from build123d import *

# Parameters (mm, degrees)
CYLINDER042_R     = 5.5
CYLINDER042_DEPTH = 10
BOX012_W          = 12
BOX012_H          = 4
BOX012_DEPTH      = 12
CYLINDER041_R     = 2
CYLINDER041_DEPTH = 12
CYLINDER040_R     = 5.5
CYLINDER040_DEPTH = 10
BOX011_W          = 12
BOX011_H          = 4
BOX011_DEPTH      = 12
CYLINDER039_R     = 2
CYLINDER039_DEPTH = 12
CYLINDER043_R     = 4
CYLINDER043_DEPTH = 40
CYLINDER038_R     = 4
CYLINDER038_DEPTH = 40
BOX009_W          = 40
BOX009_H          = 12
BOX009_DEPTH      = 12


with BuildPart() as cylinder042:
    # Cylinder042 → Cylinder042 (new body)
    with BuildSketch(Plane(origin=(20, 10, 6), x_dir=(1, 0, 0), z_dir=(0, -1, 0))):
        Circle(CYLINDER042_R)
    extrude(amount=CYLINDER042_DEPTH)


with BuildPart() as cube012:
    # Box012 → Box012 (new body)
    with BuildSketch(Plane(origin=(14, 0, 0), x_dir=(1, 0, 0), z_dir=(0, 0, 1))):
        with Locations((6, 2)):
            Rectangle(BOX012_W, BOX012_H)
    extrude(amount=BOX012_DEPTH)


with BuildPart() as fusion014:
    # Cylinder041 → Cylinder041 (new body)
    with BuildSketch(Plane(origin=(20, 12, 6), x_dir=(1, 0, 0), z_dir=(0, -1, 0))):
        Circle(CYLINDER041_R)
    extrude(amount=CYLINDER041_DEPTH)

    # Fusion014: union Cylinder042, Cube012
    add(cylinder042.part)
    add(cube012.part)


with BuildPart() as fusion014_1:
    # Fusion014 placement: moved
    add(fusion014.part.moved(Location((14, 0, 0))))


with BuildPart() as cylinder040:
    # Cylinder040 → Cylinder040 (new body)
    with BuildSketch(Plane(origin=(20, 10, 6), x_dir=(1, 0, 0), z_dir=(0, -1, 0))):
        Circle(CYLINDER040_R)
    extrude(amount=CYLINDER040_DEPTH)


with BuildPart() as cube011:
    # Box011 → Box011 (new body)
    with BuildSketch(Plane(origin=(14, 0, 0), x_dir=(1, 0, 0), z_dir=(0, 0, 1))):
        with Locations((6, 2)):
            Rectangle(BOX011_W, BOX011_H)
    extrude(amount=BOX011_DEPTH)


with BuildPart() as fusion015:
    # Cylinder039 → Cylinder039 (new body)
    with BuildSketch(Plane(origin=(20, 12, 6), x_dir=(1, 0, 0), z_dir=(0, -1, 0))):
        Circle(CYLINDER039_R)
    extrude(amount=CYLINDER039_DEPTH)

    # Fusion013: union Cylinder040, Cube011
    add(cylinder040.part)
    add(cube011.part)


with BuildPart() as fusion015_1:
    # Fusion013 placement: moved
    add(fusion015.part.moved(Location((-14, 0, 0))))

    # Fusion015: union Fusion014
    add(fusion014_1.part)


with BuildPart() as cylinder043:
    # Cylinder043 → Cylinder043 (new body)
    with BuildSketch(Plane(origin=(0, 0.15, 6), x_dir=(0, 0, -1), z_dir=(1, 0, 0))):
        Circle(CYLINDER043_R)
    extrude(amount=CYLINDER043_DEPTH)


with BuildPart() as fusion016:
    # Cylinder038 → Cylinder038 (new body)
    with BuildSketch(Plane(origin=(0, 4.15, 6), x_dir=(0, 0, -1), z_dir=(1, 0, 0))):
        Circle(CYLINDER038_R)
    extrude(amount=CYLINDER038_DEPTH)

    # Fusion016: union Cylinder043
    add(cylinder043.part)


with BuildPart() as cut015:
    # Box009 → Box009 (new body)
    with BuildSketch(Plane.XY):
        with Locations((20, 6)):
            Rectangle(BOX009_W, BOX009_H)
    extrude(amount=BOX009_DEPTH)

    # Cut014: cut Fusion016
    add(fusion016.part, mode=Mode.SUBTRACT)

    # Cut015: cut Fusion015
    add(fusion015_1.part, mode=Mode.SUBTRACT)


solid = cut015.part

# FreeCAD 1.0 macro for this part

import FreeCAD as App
import Part
import Sketcher

doc = App.newDocument("Part")
body = doc.addObject("PartDesign::Body", "Body")

sketch1 = body.newObject("Sketcher::SketchObject", "Sketch")
sketch1.AttachmentSupport = (doc.getObject("XZ_Plane"), [""])
sketch1.MapMode = "FlatFace"
sketch1.AttachmentOffset = App.Placement(App.Vector(0, 0, -10), App.Rotation())
sketch1.addGeometry(Part.Circle(App.Vector(20, 6, 0), App.Vector(0, 0, 1), 5.5), False)
sketch1.addConstraint([
    Sketcher.Constraint("Diameter", 0, 11.0),
    Sketcher.Constraint("DistanceX", -1, 1, 0, 3, 20.0),
    Sketcher.Constraint("DistanceY", -1, 1, 0, 3, 6.0),
])
pad1 = body.newObject("PartDesign::Pad", "Pad")
pad1.Profile = sketch1
pad1.Length = 10
body2 = doc.addObject("PartDesign::Body", "Body001")

sketch2 = body2.newObject("Sketcher::SketchObject", "Sketch001")
sketch2.AttachmentSupport = (doc.getObject("XY_Plane001"), [""])
sketch2.MapMode = "FlatFace"
sketch2.addGeometry([
    Part.LineSegment(App.Vector(14, 4, 0), App.Vector(14, 0, 0)),
    Part.LineSegment(App.Vector(14, 0, 0), App.Vector(26, 0, 0)),
    Part.LineSegment(App.Vector(26, 0, 0), App.Vector(26, 4, 0)),
    Part.LineSegment(App.Vector(26, 4, 0), App.Vector(14, 4, 0)),
], False)
sketch2.addConstraint([
    Sketcher.Constraint("Coincident", 0, 2, 1, 1),
    Sketcher.Constraint("Coincident", 1, 2, 2, 1),
    Sketcher.Constraint("Coincident", 2, 2, 3, 1),
    Sketcher.Constraint("Coincident", 3, 2, 0, 1),
    Sketcher.Constraint("Vertical", 0),
    Sketcher.Constraint("Horizontal", 1),
    Sketcher.Constraint("Vertical", 2),
    Sketcher.Constraint("Horizontal", 3),
    Sketcher.Constraint("PointOnObject", 0, 2, -1),
    Sketcher.Constraint("DistanceX", 1, 1, 1, 2, 12.0),
    Sketcher.Constraint("DistanceY", 0, 2, 0, 1, 4.0),
    Sketcher.Constraint("DistanceX", -1, 1, 0, 2, 14.0),
])
pad2 = body2.newObject("PartDesign::Pad", "Pad001")
pad2.Profile = sketch2
pad2.Length = 12
body3 = doc.addObject("PartDesign::Body", "Body002")

sketch3 = body3.newObject("Sketcher::SketchObject", "Sketch002")
sketch3.AttachmentSupport = (doc.getObject("XZ_Plane002"), [""])
sketch3.MapMode = "FlatFace"
sketch3.AttachmentOffset = App.Placement(App.Vector(0, 0, -12), App.Rotation())
sketch3.addGeometry(Part.Circle(App.Vector(20, 6, 0), App.Vector(0, 0, 1), 2), False)
sketch3.addConstraint([
    Sketcher.Constraint("Diameter", 0, 4.0),
    Sketcher.Constraint("DistanceX", -1, 1, 0, 3, 20.0),
    Sketcher.Constraint("DistanceY", -1, 1, 0, 3, 6.0),
])
pad3 = body3.newObject("PartDesign::Pad", "Pad002")
pad3.Profile = sketch3
pad3.Length = 12
doc.recompute()

boolean = body3.newObject("PartDesign::Boolean", "Boolean")
boolean.Type = "Fuse"
boolean.addObjects([body])
doc.recompute()

boolean2 = body3.newObject("PartDesign::Boolean", "Boolean001")
boolean2.Type = "Fuse"
boolean2.addObjects([body2])
body4 = doc.addObject("PartDesign::Body", "Body003")
doc.recompute()

body3.Placement = App.Placement(App.Vector(14, 0, 0), App.Rotation(App.Vector(0, 0, 1), 0))
boolean3 = body4.newObject("PartDesign::Boolean", "Boolean002")
boolean3.Type = "Fuse"
boolean3.addObjects([body3])
body5 = doc.addObject("PartDesign::Body", "Body004")

sketch4 = body5.newObject("Sketcher::SketchObject", "Sketch003")
sketch4.AttachmentSupport = (doc.getObject("XZ_Plane004"), [""])
sketch4.MapMode = "FlatFace"
sketch4.AttachmentOffset = App.Placement(App.Vector(0, 0, -10), App.Rotation())
sketch4.addGeometry(Part.Circle(App.Vector(20, 6, 0), App.Vector(0, 0, 1), 5.5), False)
sketch4.addConstraint([
    Sketcher.Constraint("Diameter", 0, 11.0),
    Sketcher.Constraint("DistanceX", -1, 1, 0, 3, 20.0),
    Sketcher.Constraint("DistanceY", -1, 1, 0, 3, 6.0),
])
pad4 = body5.newObject("PartDesign::Pad", "Pad003")
pad4.Profile = sketch4
pad4.Length = 10
body6 = doc.addObject("PartDesign::Body", "Body005")

sketch5 = body6.newObject("Sketcher::SketchObject", "Sketch004")
sketch5.AttachmentSupport = (doc.getObject("XY_Plane005"), [""])
sketch5.MapMode = "FlatFace"
sketch5.addGeometry([
    Part.LineSegment(App.Vector(14, 4, 0), App.Vector(14, 0, 0)),
    Part.LineSegment(App.Vector(14, 0, 0), App.Vector(26, 0, 0)),
    Part.LineSegment(App.Vector(26, 0, 0), App.Vector(26, 4, 0)),
    Part.LineSegment(App.Vector(26, 4, 0), App.Vector(14, 4, 0)),
], False)
sketch5.addConstraint([
    Sketcher.Constraint("Coincident", 0, 2, 1, 1),
    Sketcher.Constraint("Coincident", 1, 2, 2, 1),
    Sketcher.Constraint("Coincident", 2, 2, 3, 1),
    Sketcher.Constraint("Coincident", 3, 2, 0, 1),
    Sketcher.Constraint("Vertical", 0),
    Sketcher.Constraint("Horizontal", 1),
    Sketcher.Constraint("Vertical", 2),
    Sketcher.Constraint("Horizontal", 3),
    Sketcher.Constraint("PointOnObject", 0, 2, -1),
    Sketcher.Constraint("DistanceX", 1, 1, 1, 2, 12.0),
    Sketcher.Constraint("DistanceY", 0, 2, 0, 1, 4.0),
    Sketcher.Constraint("DistanceX", -1, 1, 0, 2, 14.0),
])
pad5 = body6.newObject("PartDesign::Pad", "Pad004")
pad5.Profile = sketch5
pad5.Length = 12
body7 = doc.addObject("PartDesign::Body", "Body006")

sketch6 = body7.newObject("Sketcher::SketchObject", "Sketch005")
sketch6.AttachmentSupport = (doc.getObject("XZ_Plane006"), [""])
sketch6.MapMode = "FlatFace"
sketch6.AttachmentOffset = App.Placement(App.Vector(0, 0, -12), App.Rotation())
sketch6.addGeometry(Part.Circle(App.Vector(20, 6, 0), App.Vector(0, 0, 1), 2), False)
sketch6.addConstraint([
    Sketcher.Constraint("Diameter", 0, 4.0),
    Sketcher.Constraint("DistanceX", -1, 1, 0, 3, 20.0),
    Sketcher.Constraint("DistanceY", -1, 1, 0, 3, 6.0),
])
pad6 = body7.newObject("PartDesign::Pad", "Pad005")
pad6.Profile = sketch6
pad6.Length = 12
doc.recompute()

boolean4 = body7.newObject("PartDesign::Boolean", "Boolean003")
boolean4.Type = "Fuse"
boolean4.addObjects([body5])
doc.recompute()

boolean5 = body7.newObject("PartDesign::Boolean", "Boolean004")
boolean5.Type = "Fuse"
boolean5.addObjects([body6])
body8 = doc.addObject("PartDesign::Body", "Body007")
body8.AllowCompound = True
doc.recompute()

body7.Placement = App.Placement(App.Vector(-14, 0, 0), App.Rotation(App.Vector(0, 0, 1), 0))
boolean6 = body8.newObject("PartDesign::Boolean", "Boolean005")
boolean6.Type = "Fuse"
boolean6.addObjects([body7])
doc.recompute()

boolean7 = body8.newObject("PartDesign::Boolean", "Boolean006")
boolean7.Type = "Fuse"
boolean7.addObjects([body4])
body9 = doc.addObject("PartDesign::Body", "Body008")

sketch7 = body9.newObject("Sketcher::SketchObject", "Sketch006")
sketch7.AttachmentSupport = (doc.getObject("YZ_Plane008"), [""])
sketch7.MapMode = "FlatFace"
sketch7.addGeometry(Part.Circle(App.Vector(0.15, 6, 0), App.Vector(0, 0, 1), 4), False)
sketch7.addConstraint([
    Sketcher.Constraint("Diameter", 0, 8.0),
    Sketcher.Constraint("DistanceY", -1, 1, 0, 3, 6.0),
    Sketcher.Constraint("DistanceX", -1, 1, 0, 3, 0.15),
])
pad7 = body9.newObject("PartDesign::Pad", "Pad006")
pad7.Profile = sketch7
pad7.Length = 40
body10 = doc.addObject("PartDesign::Body", "Body009")

sketch8 = body10.newObject("Sketcher::SketchObject", "Sketch007")
sketch8.AttachmentSupport = (doc.getObject("YZ_Plane009"), [""])
sketch8.MapMode = "FlatFace"
sketch8.addGeometry(Part.Circle(App.Vector(4.15, 6, 0), App.Vector(0, 0, 1), 4), False)
sketch8.addConstraint([
    Sketcher.Constraint("Diameter", 0, 8.0),
    Sketcher.Constraint("DistanceY", -1, 1, 0, 3, 6.0),
    Sketcher.Constraint("DistanceX", -1, 1, 0, 3, 4.15),
])
pad8 = body10.newObject("PartDesign::Pad", "Pad007")
pad8.Profile = sketch8
pad8.Length = 40
doc.recompute()

boolean8 = body10.newObject("PartDesign::Boolean", "Boolean007")
boolean8.Type = "Fuse"
boolean8.addObjects([body9])
body11 = doc.addObject("PartDesign::Body", "Body010")

sketch9 = body11.newObject("Sketcher::SketchObject", "Sketch008")
sketch9.AttachmentSupport = (doc.getObject("XY_Plane010"), [""])
sketch9.MapMode = "FlatFace"
sketch9.addGeometry([
    Part.LineSegment(App.Vector(0, 12, 0), App.Vector(0, 0, 0)),
    Part.LineSegment(App.Vector(0, 0, 0), App.Vector(40, 0, 0)),
    Part.LineSegment(App.Vector(40, 0, 0), App.Vector(40, 12, 0)),
    Part.LineSegment(App.Vector(40, 12, 0), App.Vector(0, 12, 0)),
], False)
sketch9.addConstraint([
    Sketcher.Constraint("Coincident", 0, 2, 1, 1),
    Sketcher.Constraint("Coincident", 1, 2, 2, 1),
    Sketcher.Constraint("Coincident", 2, 2, 3, 1),
    Sketcher.Constraint("Coincident", 3, 2, 0, 1),
    Sketcher.Constraint("Vertical", 0),
    Sketcher.Constraint("Horizontal", 1),
    Sketcher.Constraint("Vertical", 2),
    Sketcher.Constraint("Horizontal", 3),
    Sketcher.Constraint("Coincident", 0, 2, -1, 1),
    Sketcher.Constraint("DistanceX", 1, 1, 1, 2, 40.0),
    Sketcher.Constraint("DistanceY", 0, 2, 0, 1, 12.0),
])
pad9 = body11.newObject("PartDesign::Pad", "Pad008")
pad9.Profile = sketch9
pad9.Length = 12
doc.recompute()

boolean9 = body11.newObject("PartDesign::Boolean", "Boolean008")
boolean9.Type = "Cut"
boolean9.addObjects([body10])
doc.recompute()

boolean10 = body11.newObject("PartDesign::Boolean", "Boolean009")
boolean10.Type = "Cut"
boolean10.addObjects([body8])

doc.recompute()
